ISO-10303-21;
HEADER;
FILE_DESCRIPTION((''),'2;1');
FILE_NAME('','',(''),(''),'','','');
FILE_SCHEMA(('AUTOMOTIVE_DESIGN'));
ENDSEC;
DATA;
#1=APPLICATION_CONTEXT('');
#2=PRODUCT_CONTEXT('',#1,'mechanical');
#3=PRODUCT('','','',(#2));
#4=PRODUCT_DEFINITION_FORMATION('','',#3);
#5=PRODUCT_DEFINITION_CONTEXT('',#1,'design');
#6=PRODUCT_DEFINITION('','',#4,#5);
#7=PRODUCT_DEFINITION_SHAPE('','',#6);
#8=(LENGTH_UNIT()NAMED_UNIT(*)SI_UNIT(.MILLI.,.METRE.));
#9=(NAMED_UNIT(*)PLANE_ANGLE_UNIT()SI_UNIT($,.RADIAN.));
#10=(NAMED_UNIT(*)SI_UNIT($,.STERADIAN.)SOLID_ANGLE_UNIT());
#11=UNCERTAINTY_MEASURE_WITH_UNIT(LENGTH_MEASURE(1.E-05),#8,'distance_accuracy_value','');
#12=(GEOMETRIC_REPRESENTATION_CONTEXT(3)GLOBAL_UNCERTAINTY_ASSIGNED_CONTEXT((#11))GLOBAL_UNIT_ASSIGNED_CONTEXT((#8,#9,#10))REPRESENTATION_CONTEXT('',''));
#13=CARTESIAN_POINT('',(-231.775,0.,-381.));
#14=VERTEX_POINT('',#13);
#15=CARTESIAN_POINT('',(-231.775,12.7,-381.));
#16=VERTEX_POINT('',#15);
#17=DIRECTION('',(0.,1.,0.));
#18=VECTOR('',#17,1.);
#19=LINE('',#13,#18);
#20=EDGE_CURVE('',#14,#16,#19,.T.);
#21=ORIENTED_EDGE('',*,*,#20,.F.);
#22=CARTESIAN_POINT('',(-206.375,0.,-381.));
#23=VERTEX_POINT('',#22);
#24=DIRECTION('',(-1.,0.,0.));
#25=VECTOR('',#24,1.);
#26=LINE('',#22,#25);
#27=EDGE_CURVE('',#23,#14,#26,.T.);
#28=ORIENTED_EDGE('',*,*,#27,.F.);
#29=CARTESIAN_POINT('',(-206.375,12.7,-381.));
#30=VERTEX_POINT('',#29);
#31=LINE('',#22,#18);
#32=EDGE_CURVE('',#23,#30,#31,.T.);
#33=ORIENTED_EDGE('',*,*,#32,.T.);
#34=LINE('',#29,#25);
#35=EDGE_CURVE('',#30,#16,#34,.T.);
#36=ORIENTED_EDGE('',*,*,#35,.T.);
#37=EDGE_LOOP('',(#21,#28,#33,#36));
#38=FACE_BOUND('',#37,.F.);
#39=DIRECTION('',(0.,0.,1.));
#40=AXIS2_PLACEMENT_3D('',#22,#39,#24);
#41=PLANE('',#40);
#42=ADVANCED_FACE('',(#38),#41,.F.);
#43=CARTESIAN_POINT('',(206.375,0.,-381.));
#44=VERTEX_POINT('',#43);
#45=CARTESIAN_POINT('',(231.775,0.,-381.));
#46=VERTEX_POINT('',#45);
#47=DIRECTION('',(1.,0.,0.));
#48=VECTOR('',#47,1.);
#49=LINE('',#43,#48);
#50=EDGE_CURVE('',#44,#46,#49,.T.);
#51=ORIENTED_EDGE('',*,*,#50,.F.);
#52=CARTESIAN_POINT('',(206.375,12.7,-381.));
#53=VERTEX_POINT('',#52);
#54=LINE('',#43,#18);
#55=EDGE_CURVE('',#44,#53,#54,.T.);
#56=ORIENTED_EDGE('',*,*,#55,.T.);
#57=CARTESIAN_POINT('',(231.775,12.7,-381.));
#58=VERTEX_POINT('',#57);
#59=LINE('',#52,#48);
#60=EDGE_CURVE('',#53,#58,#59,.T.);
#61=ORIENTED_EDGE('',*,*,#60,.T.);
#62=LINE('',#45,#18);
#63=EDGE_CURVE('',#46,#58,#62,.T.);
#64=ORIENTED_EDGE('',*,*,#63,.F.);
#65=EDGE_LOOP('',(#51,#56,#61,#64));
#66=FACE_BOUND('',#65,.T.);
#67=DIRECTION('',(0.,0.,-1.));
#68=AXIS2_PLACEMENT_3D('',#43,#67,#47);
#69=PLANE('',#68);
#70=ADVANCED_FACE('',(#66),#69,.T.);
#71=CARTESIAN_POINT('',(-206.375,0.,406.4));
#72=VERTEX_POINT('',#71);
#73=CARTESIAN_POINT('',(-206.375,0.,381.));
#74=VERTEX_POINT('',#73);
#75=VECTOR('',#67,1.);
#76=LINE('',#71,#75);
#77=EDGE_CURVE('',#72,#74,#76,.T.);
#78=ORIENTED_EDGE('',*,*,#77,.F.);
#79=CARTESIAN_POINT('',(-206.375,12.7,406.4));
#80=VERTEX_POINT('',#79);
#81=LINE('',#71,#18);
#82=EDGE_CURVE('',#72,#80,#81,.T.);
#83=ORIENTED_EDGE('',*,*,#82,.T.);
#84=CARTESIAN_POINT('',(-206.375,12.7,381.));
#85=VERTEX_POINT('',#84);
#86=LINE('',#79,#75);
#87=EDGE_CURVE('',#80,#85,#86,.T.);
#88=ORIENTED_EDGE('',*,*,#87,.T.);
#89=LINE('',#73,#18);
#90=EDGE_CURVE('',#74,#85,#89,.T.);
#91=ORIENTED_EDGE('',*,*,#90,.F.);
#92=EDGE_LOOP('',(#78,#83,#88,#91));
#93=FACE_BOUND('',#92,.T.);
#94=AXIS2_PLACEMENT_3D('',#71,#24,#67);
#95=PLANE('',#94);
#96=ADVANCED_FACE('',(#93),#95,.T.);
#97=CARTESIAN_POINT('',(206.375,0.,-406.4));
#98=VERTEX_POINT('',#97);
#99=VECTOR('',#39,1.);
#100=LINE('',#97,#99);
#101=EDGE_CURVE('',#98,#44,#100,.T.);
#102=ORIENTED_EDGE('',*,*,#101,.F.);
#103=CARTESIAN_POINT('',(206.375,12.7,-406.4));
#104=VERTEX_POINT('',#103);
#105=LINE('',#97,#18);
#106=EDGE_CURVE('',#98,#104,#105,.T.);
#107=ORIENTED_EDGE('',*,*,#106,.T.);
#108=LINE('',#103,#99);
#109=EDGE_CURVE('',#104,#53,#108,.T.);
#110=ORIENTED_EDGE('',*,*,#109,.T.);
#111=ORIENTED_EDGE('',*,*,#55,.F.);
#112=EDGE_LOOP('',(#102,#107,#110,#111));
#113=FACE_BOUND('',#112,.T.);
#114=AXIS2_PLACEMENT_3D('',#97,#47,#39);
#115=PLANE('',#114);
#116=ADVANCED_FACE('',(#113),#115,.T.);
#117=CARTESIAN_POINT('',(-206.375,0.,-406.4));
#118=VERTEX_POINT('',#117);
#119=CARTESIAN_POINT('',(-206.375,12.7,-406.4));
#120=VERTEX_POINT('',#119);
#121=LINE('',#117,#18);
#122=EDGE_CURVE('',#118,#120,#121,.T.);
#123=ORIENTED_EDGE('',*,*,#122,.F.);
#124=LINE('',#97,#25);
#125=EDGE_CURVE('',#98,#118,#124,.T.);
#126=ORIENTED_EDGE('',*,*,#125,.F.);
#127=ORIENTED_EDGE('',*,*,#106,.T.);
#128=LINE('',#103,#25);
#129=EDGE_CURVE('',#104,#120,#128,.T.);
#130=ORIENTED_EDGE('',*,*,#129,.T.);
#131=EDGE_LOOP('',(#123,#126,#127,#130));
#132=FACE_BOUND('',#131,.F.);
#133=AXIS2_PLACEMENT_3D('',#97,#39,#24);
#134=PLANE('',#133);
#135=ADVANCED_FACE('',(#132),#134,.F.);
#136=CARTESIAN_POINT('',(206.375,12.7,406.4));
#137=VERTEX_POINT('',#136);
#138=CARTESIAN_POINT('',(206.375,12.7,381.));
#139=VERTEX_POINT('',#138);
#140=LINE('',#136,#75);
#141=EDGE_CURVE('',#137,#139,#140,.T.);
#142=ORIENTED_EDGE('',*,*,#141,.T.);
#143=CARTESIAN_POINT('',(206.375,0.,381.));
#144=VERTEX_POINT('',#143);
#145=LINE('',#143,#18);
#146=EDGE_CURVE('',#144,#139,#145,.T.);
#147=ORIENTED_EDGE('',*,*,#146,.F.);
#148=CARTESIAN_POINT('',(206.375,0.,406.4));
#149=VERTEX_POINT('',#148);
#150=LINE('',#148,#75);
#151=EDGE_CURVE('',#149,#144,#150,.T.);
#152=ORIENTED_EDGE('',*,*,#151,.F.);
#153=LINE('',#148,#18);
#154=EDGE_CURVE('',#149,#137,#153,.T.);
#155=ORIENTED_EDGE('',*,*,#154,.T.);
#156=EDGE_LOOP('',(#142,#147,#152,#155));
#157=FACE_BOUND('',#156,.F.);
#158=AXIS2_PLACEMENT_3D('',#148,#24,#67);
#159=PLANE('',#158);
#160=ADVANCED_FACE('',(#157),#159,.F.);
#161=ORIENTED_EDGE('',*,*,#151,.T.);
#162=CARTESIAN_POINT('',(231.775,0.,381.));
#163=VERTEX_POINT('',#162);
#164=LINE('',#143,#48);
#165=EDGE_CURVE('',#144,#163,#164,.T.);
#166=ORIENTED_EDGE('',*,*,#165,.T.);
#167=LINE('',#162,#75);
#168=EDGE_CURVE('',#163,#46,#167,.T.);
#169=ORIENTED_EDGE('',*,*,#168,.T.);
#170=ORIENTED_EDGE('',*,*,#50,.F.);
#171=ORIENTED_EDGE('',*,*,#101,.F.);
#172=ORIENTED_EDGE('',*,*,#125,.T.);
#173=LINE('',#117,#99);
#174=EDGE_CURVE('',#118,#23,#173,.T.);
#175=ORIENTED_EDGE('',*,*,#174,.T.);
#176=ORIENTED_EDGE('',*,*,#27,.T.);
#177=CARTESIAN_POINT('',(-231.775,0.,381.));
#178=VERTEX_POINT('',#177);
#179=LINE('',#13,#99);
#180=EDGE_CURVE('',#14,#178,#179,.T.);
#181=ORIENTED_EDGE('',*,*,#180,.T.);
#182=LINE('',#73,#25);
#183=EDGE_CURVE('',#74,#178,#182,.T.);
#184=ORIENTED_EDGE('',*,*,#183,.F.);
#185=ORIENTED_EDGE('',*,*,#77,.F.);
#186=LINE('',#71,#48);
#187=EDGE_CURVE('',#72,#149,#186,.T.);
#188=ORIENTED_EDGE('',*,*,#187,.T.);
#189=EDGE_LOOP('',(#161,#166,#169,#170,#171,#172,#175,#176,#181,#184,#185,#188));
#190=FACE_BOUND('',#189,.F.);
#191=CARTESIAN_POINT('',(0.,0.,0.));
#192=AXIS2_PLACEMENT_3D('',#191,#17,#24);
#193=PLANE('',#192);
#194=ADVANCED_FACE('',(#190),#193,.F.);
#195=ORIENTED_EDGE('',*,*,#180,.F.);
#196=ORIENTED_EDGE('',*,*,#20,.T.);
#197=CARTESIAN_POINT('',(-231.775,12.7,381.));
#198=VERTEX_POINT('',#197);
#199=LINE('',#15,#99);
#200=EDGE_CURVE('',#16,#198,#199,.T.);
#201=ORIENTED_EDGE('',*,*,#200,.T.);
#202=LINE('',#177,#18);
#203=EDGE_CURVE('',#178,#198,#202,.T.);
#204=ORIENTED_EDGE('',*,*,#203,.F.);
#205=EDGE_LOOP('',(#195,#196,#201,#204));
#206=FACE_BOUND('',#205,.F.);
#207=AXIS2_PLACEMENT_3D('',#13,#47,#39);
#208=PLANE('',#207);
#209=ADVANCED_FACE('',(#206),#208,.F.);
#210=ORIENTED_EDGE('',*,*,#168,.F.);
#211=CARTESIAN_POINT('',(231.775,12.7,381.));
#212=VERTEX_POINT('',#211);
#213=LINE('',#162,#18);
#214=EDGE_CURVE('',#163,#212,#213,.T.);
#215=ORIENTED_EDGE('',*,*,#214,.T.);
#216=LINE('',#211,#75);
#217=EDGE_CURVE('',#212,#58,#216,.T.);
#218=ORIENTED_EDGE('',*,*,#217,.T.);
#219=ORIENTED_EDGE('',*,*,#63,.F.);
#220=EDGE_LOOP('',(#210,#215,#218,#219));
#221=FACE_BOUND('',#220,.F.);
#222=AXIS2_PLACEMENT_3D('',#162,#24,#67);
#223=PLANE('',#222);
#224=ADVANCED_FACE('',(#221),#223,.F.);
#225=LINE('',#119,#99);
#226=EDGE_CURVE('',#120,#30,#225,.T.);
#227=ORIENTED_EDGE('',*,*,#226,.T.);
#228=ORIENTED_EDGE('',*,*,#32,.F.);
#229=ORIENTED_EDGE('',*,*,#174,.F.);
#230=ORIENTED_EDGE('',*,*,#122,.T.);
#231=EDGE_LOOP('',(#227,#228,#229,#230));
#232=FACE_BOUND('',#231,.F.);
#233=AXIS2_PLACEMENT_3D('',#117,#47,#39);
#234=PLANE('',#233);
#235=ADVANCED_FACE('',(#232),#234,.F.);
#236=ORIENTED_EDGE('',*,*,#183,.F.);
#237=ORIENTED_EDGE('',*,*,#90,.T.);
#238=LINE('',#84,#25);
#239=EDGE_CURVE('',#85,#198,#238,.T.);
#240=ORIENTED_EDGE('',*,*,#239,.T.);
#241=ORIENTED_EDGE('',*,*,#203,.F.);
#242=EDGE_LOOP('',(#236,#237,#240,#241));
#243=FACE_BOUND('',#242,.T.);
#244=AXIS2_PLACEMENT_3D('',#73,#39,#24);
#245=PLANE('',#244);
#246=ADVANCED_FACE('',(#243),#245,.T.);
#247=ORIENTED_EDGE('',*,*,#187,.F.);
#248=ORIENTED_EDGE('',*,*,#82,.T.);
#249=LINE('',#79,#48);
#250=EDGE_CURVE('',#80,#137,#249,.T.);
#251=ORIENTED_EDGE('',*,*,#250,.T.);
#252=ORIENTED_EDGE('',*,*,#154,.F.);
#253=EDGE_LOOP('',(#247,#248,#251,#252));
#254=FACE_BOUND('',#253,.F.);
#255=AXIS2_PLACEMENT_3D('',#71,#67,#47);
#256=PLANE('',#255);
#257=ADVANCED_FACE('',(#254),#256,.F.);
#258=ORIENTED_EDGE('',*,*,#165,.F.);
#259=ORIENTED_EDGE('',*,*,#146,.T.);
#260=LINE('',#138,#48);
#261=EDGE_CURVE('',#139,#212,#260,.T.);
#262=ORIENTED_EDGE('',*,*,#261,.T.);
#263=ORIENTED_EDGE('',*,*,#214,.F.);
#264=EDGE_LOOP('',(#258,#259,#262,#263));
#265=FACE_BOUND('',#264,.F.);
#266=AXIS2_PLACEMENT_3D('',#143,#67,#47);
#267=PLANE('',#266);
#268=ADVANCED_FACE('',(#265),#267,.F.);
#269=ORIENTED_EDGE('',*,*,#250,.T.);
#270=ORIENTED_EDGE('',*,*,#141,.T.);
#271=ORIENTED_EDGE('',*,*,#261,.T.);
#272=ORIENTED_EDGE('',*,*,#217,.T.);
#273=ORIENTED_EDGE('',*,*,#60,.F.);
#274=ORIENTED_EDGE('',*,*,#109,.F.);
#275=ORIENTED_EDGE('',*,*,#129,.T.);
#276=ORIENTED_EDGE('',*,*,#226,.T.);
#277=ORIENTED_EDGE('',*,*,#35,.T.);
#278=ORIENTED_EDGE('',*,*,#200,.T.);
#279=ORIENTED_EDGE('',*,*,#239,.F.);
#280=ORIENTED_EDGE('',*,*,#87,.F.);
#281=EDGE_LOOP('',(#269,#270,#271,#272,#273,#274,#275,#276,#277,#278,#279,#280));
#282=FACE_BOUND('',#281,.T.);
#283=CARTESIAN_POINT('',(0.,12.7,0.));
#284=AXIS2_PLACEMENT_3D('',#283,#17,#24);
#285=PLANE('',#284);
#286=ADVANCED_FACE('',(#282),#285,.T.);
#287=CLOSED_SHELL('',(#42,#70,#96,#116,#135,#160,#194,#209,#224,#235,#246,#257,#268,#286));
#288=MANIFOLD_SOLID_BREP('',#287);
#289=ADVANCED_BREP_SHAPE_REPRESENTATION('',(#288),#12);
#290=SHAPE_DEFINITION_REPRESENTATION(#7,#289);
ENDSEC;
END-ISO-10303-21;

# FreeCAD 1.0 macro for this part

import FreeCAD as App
import Part
import Sketcher

V = App.Vector
Q = App.Units.Quantity


def add_polygon(sketch, points):
    """Adds a closed chain of lines whose ends are joined by coincident constraints."""
    first, n = sketch.GeometryCount, len(points)
    for a, b in zip(points, points[1:] + points[:1]):
        sketch.addGeometry(Part.LineSegment(App.Vector(*a, 0), App.Vector(*b, 0)), False)
    for i in range(n):
        sketch.addConstraint(Sketcher.Constraint("Coincident", first + i, 2, first + (i + 1) % n, 1))

doc = App.newDocument("Part")
params = doc.addObject("Spreadsheet::Sheet", "Params")
for row, (alias, value) in enumerate([
    ("sketch1_width", "1 in"),
    ("pad1_length", "0.5 in"),
], start=1):
    params.set(f"A{row}", alias)
    params.set(f"B{row}", "=" + value)
    params.setAlias(f"B{row}", alias)

body = doc.addObject("PartDesign::Body", "Body")

# Sketch on XZ plane
sketch1 = body.newObject("Sketcher::SketchObject", "Sketch")
sketch1.AttachmentSupport = (doc.getObject("XZ_Plane"), [""])
sketch1.MapMode = "FlatFace"
add_polygon(sketch1, [(-206, 381), (-206, 406), (206, 406), (206, 381), (232, 381), (232, -381), (206, -381), (206, -406), (-206, -406), (-206, -381), (-232, -381), (-232, 381)])  # lines 0-11
sketch1.addConstraint([
    Sketcher.Constraint("Vertical", 0),
    Sketcher.Constraint("Horizontal", 1),
    Sketcher.Constraint("Vertical", 2),
    Sketcher.Constraint("Horizontal", 3),
    Sketcher.Constraint("Vertical", 4),
    Sketcher.Constraint("Horizontal", 5),
    Sketcher.Constraint("Vertical", 6),
    Sketcher.Constraint("Horizontal", 7),
    Sketcher.Constraint("Vertical", 8),
    Sketcher.Constraint("Horizontal", 9),
    Sketcher.Constraint("Vertical", 10),
    Sketcher.Constraint("Horizontal", 11),
    Sketcher.Constraint("Symmetric", 0, 2, 6, 2, -1, 1),
    Sketcher.Constraint("Symmetric", 2, 2, 8, 2, -1, 1),
    Sketcher.Constraint("Symmetric", 4, 2, 10, 2, -1, 1),
    Sketcher.Constraint("Symmetric", 5, 2, 8, 2, -2),
    Sketcher.Constraint("Equal", 11, 0),
    Sketcher.Constraint("DistanceY", 6, 2, 1, 2, Q("32 in")),
    Sketcher.Constraint("DistanceX", 3, 1, 3, 2, Q("1 in")),
    Sketcher.Constraint("DistanceX", 9, 2, 4, 2, Q("18.25 in")),
])
sketch1.setExpression("Constraints[30]", "Params.sketch1_width")
pad1 = body.newObject("PartDesign::Pad", "Pad")
pad1.Profile = sketch1
pad1.setExpression("Length", "Params.pad1_length")
pad1.Reversed = True

doc.recompute()
